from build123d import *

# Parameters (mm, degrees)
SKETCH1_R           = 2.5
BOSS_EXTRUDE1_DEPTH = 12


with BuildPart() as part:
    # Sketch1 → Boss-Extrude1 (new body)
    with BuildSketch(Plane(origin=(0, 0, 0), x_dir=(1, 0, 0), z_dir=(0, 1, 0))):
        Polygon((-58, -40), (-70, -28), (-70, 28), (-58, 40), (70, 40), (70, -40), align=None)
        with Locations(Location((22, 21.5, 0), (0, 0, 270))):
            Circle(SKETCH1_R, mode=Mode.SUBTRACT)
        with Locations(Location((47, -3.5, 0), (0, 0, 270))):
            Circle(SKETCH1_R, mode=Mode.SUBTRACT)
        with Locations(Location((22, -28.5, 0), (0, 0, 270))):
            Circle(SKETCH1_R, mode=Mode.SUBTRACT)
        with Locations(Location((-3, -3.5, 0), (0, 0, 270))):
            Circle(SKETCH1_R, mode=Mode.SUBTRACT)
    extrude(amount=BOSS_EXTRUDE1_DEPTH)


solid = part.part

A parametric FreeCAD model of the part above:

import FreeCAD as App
import Part
import Sketcher

V = App.Vector
Q = App.Units.Quantity

doc = App.newDocument("Part")
body = doc.addObject("PartDesign::Body", "Body")

sketch1 = body.newObject("Sketcher::SketchObject", "Sketch")
sketch1.AttachmentSupport = (doc.getObject("XZ_Plane"), [""])
sketch1.MapMode = "FlatFace"
sketch1.addGeometry([
    Part.LineSegment(V(-70, 28, 0), V(-58, 40, 0)),
    Part.LineSegment(V(-58, 40, 0), V(70, 40, 0)),
    Part.LineSegment(V(70, 40, 0), V(70, -40, 0)),
    Part.LineSegment(V(70, -40, 0), V(-58, -40, 0)),
    Part.LineSegment(V(-58, -40, 0), V(-70, -28, 0)),
    Part.LineSegment(V(-70, -28, 0), V(-70, 28, 0)),
    Part.Circle(V(22, 28.5, 0), V(0, 0, 1), 2.5),
    Part.Circle(V(47, 3.5, 0), V(0, 0, 1), 2.5),
    Part.Circle(V(-3, 3.5, 0), V(0, 0, 1), 2.5),
    Part.Circle(V(22, -21.5, 0), V(0, 0, 1), 2.5),
], False)
sketch1.addConstraint([
    Sketcher.Constraint("Coincident", 0, 2, 1, 1),
    Sketcher.Constraint("Coincident", 1, 2, 2, 1),
    Sketcher.Constraint("Coincident", 2, 2, 3, 1),
    Sketcher.Constraint("Coincident", 3, 2, 4, 1),
    Sketcher.Constraint("Coincident", 4, 2, 5, 1),
    Sketcher.Constraint("Coincident", 5, 2, 0, 1),
    Sketcher.Constraint("Horizontal", 1),
    Sketcher.Constraint("Vertical", 2),
    Sketcher.Constraint("Horizontal", 3),
    Sketcher.Constraint("Vertical", 5),
    Sketcher.Constraint("Equal", 6, 7),
    Sketcher.Constraint("Equal", 7, 8),
    Sketcher.Constraint("Equal", 8, 9),
    Sketcher.Constraint("Symmetric", 0, 2, 3, 2, -1),
    Sketcher.Constraint("Perpendicular", 0, 4),
    Sketcher.Constraint("Horizontal", 7, 3, 8, 3),
    Sketcher.Constraint("Vertical", 6, 3, 9, 3),
    Sketcher.Constraint("Equal", 0, 4),
    Sketcher.Constraint("Diameter", 6, Q("5 mm")),
    Sketcher.Constraint("DistanceX", 1, 1, 1, 2, Q("128 mm")),
    Sketcher.Constraint("DistanceY", 2, 2, 2, 1, Q("80 mm")),
    Sketcher.Constraint("DistanceY", 5, 1, 5, 2, Q("56 mm")),
    Sketcher.Constraint("DistanceX", -1, 1, 6, 3, Q("22 mm")),
    Sketcher.Constraint("DistanceX", -1, 1, 7, 3, Q("47 mm")),
    Sketcher.Constraint("DistanceX", 8, 3, -1, 1, Q("3 mm")),
    Sketcher.Constraint("DistanceX", 0, 2, -1, 1, Q("58 mm")),
    Sketcher.Constraint("DistanceY", 7, 3, 6, 3, Q("25 mm")),
    Sketcher.Constraint("DistanceY", 9, 3, 7, 3, Q("25 mm")),
    Sketcher.Constraint("DistanceY", -1, 1, 6, 3, Q("28.5 mm")),
])
pad1 = body.newObject("PartDesign::Pad", "Pad")
pad1.Profile = sketch1
pad1.Length = 12
pad1.Reversed = True

doc.recompute()
